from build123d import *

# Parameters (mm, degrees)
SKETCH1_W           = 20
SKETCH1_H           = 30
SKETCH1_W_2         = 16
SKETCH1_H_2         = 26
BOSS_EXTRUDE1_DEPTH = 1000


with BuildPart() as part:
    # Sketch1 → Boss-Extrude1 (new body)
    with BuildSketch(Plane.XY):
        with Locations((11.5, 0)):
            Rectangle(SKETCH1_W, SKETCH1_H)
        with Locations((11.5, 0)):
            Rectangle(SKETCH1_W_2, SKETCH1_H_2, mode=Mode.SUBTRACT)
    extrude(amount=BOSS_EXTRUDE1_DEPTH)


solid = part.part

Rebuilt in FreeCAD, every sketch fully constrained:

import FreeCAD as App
import Part
import Sketcher
Q = App.Units.Quantity


def add_polygon(sketch, points):
    """Adds a closed chain of lines whose ends are joined by coincident constraints."""
    first, n = sketch.GeometryCount, len(points)
    for a, b in zip(points, points[1:] + points[:1]):
        sketch.addGeometry(Part.LineSegment(App.Vector(*a, 0), App.Vector(*b, 0)), False)
    for i in range(n):
        sketch.addConstraint(Sketcher.Constraint("Coincident", first + i, 2, first + (i + 1) % n, 1))

doc = App.newDocument("Part")
params = doc.addObject("Spreadsheet::Sheet", "Params")
for row, (alias, value) in enumerate([
    ("sketch1_width", "20 mm"),
    ("sketch1_width2", "16 mm"),
    ("sketch1_height", "30 mm"),
    ("sketch1_height2", "26 mm"),
    ("pad1_length", "1000 mm"),
], start=1):
    params.set(f"A{row}", alias)
    params.set(f"B{row}", "=" + value)
    params.setAlias(f"B{row}", alias)

body = doc.addObject("PartDesign::Body", "Body")

# Sketch on XY plane
sketch1 = body.newObject("Sketcher::SketchObject", "Sketch")
sketch1.AttachmentSupport = (doc.getObject("XY_Plane"), [""])
sketch1.MapMode = "FlatFace"
add_polygon(sketch1, [(1.5, 15), (1.5, -15), (21.5, -15), (21.5, 15)])  # lines 0-3
add_polygon(sketch1, [(19.5, -13), (3.5, -13), (3.5, 13), (19.5, 13)])  # lines 4-7
sketch1.addConstraint([
    Sketcher.Constraint("Vertical", 0),
    Sketcher.Constraint("Horizontal", 1),
    Sketcher.Constraint("Vertical", 2),
    Sketcher.Constraint("Horizontal", 3),
    Sketcher.Constraint("Horizontal", 4),
    Sketcher.Constraint("Vertical", 5),
    Sketcher.Constraint("Horizontal", 6),
    Sketcher.Constraint("Vertical", 7),
    Sketcher.Constraint("DistanceX", 1, 1, 1, 2, Q("20 mm")),
    Sketcher.Constraint("DistanceX", 4, 2, 4, 1, Q("16 mm")),
    Sketcher.Constraint("DistanceY", 0, 2, 0, 1, Q("30 mm")),
    Sketcher.Constraint("DistanceY", 5, 1, 5, 2, Q("26 mm")),
    Sketcher.Constraint("DistanceY", 0, 2, -1, 1, Q("15 mm")),
    Sketcher.Constraint("DistanceY", 4, 2, -1, 1, Q("13 mm")),
    Sketcher.Constraint("DistanceX", 0, 2, 4, 2, Q("2 mm")),
    Sketcher.Constraint("DistanceX", -1, 1, 0, 2, Q("1.5 mm")),
])
sketch1.setExpression("Constraints[16]", "Params.sketch1_width")
sketch1.setExpression("Constraints[17]", "Params.sketch1_width2")
sketch1.setExpression("Constraints[18]", "Params.sketch1_height")
sketch1.setExpression("Constraints[19]", "Params.sketch1_height2")
pad1 = body.newObject("PartDesign::Pad", "Pad")
pad1.Profile = sketch1
pad1.setExpression("Length", "Params.pad1_length")

doc.recompute()
